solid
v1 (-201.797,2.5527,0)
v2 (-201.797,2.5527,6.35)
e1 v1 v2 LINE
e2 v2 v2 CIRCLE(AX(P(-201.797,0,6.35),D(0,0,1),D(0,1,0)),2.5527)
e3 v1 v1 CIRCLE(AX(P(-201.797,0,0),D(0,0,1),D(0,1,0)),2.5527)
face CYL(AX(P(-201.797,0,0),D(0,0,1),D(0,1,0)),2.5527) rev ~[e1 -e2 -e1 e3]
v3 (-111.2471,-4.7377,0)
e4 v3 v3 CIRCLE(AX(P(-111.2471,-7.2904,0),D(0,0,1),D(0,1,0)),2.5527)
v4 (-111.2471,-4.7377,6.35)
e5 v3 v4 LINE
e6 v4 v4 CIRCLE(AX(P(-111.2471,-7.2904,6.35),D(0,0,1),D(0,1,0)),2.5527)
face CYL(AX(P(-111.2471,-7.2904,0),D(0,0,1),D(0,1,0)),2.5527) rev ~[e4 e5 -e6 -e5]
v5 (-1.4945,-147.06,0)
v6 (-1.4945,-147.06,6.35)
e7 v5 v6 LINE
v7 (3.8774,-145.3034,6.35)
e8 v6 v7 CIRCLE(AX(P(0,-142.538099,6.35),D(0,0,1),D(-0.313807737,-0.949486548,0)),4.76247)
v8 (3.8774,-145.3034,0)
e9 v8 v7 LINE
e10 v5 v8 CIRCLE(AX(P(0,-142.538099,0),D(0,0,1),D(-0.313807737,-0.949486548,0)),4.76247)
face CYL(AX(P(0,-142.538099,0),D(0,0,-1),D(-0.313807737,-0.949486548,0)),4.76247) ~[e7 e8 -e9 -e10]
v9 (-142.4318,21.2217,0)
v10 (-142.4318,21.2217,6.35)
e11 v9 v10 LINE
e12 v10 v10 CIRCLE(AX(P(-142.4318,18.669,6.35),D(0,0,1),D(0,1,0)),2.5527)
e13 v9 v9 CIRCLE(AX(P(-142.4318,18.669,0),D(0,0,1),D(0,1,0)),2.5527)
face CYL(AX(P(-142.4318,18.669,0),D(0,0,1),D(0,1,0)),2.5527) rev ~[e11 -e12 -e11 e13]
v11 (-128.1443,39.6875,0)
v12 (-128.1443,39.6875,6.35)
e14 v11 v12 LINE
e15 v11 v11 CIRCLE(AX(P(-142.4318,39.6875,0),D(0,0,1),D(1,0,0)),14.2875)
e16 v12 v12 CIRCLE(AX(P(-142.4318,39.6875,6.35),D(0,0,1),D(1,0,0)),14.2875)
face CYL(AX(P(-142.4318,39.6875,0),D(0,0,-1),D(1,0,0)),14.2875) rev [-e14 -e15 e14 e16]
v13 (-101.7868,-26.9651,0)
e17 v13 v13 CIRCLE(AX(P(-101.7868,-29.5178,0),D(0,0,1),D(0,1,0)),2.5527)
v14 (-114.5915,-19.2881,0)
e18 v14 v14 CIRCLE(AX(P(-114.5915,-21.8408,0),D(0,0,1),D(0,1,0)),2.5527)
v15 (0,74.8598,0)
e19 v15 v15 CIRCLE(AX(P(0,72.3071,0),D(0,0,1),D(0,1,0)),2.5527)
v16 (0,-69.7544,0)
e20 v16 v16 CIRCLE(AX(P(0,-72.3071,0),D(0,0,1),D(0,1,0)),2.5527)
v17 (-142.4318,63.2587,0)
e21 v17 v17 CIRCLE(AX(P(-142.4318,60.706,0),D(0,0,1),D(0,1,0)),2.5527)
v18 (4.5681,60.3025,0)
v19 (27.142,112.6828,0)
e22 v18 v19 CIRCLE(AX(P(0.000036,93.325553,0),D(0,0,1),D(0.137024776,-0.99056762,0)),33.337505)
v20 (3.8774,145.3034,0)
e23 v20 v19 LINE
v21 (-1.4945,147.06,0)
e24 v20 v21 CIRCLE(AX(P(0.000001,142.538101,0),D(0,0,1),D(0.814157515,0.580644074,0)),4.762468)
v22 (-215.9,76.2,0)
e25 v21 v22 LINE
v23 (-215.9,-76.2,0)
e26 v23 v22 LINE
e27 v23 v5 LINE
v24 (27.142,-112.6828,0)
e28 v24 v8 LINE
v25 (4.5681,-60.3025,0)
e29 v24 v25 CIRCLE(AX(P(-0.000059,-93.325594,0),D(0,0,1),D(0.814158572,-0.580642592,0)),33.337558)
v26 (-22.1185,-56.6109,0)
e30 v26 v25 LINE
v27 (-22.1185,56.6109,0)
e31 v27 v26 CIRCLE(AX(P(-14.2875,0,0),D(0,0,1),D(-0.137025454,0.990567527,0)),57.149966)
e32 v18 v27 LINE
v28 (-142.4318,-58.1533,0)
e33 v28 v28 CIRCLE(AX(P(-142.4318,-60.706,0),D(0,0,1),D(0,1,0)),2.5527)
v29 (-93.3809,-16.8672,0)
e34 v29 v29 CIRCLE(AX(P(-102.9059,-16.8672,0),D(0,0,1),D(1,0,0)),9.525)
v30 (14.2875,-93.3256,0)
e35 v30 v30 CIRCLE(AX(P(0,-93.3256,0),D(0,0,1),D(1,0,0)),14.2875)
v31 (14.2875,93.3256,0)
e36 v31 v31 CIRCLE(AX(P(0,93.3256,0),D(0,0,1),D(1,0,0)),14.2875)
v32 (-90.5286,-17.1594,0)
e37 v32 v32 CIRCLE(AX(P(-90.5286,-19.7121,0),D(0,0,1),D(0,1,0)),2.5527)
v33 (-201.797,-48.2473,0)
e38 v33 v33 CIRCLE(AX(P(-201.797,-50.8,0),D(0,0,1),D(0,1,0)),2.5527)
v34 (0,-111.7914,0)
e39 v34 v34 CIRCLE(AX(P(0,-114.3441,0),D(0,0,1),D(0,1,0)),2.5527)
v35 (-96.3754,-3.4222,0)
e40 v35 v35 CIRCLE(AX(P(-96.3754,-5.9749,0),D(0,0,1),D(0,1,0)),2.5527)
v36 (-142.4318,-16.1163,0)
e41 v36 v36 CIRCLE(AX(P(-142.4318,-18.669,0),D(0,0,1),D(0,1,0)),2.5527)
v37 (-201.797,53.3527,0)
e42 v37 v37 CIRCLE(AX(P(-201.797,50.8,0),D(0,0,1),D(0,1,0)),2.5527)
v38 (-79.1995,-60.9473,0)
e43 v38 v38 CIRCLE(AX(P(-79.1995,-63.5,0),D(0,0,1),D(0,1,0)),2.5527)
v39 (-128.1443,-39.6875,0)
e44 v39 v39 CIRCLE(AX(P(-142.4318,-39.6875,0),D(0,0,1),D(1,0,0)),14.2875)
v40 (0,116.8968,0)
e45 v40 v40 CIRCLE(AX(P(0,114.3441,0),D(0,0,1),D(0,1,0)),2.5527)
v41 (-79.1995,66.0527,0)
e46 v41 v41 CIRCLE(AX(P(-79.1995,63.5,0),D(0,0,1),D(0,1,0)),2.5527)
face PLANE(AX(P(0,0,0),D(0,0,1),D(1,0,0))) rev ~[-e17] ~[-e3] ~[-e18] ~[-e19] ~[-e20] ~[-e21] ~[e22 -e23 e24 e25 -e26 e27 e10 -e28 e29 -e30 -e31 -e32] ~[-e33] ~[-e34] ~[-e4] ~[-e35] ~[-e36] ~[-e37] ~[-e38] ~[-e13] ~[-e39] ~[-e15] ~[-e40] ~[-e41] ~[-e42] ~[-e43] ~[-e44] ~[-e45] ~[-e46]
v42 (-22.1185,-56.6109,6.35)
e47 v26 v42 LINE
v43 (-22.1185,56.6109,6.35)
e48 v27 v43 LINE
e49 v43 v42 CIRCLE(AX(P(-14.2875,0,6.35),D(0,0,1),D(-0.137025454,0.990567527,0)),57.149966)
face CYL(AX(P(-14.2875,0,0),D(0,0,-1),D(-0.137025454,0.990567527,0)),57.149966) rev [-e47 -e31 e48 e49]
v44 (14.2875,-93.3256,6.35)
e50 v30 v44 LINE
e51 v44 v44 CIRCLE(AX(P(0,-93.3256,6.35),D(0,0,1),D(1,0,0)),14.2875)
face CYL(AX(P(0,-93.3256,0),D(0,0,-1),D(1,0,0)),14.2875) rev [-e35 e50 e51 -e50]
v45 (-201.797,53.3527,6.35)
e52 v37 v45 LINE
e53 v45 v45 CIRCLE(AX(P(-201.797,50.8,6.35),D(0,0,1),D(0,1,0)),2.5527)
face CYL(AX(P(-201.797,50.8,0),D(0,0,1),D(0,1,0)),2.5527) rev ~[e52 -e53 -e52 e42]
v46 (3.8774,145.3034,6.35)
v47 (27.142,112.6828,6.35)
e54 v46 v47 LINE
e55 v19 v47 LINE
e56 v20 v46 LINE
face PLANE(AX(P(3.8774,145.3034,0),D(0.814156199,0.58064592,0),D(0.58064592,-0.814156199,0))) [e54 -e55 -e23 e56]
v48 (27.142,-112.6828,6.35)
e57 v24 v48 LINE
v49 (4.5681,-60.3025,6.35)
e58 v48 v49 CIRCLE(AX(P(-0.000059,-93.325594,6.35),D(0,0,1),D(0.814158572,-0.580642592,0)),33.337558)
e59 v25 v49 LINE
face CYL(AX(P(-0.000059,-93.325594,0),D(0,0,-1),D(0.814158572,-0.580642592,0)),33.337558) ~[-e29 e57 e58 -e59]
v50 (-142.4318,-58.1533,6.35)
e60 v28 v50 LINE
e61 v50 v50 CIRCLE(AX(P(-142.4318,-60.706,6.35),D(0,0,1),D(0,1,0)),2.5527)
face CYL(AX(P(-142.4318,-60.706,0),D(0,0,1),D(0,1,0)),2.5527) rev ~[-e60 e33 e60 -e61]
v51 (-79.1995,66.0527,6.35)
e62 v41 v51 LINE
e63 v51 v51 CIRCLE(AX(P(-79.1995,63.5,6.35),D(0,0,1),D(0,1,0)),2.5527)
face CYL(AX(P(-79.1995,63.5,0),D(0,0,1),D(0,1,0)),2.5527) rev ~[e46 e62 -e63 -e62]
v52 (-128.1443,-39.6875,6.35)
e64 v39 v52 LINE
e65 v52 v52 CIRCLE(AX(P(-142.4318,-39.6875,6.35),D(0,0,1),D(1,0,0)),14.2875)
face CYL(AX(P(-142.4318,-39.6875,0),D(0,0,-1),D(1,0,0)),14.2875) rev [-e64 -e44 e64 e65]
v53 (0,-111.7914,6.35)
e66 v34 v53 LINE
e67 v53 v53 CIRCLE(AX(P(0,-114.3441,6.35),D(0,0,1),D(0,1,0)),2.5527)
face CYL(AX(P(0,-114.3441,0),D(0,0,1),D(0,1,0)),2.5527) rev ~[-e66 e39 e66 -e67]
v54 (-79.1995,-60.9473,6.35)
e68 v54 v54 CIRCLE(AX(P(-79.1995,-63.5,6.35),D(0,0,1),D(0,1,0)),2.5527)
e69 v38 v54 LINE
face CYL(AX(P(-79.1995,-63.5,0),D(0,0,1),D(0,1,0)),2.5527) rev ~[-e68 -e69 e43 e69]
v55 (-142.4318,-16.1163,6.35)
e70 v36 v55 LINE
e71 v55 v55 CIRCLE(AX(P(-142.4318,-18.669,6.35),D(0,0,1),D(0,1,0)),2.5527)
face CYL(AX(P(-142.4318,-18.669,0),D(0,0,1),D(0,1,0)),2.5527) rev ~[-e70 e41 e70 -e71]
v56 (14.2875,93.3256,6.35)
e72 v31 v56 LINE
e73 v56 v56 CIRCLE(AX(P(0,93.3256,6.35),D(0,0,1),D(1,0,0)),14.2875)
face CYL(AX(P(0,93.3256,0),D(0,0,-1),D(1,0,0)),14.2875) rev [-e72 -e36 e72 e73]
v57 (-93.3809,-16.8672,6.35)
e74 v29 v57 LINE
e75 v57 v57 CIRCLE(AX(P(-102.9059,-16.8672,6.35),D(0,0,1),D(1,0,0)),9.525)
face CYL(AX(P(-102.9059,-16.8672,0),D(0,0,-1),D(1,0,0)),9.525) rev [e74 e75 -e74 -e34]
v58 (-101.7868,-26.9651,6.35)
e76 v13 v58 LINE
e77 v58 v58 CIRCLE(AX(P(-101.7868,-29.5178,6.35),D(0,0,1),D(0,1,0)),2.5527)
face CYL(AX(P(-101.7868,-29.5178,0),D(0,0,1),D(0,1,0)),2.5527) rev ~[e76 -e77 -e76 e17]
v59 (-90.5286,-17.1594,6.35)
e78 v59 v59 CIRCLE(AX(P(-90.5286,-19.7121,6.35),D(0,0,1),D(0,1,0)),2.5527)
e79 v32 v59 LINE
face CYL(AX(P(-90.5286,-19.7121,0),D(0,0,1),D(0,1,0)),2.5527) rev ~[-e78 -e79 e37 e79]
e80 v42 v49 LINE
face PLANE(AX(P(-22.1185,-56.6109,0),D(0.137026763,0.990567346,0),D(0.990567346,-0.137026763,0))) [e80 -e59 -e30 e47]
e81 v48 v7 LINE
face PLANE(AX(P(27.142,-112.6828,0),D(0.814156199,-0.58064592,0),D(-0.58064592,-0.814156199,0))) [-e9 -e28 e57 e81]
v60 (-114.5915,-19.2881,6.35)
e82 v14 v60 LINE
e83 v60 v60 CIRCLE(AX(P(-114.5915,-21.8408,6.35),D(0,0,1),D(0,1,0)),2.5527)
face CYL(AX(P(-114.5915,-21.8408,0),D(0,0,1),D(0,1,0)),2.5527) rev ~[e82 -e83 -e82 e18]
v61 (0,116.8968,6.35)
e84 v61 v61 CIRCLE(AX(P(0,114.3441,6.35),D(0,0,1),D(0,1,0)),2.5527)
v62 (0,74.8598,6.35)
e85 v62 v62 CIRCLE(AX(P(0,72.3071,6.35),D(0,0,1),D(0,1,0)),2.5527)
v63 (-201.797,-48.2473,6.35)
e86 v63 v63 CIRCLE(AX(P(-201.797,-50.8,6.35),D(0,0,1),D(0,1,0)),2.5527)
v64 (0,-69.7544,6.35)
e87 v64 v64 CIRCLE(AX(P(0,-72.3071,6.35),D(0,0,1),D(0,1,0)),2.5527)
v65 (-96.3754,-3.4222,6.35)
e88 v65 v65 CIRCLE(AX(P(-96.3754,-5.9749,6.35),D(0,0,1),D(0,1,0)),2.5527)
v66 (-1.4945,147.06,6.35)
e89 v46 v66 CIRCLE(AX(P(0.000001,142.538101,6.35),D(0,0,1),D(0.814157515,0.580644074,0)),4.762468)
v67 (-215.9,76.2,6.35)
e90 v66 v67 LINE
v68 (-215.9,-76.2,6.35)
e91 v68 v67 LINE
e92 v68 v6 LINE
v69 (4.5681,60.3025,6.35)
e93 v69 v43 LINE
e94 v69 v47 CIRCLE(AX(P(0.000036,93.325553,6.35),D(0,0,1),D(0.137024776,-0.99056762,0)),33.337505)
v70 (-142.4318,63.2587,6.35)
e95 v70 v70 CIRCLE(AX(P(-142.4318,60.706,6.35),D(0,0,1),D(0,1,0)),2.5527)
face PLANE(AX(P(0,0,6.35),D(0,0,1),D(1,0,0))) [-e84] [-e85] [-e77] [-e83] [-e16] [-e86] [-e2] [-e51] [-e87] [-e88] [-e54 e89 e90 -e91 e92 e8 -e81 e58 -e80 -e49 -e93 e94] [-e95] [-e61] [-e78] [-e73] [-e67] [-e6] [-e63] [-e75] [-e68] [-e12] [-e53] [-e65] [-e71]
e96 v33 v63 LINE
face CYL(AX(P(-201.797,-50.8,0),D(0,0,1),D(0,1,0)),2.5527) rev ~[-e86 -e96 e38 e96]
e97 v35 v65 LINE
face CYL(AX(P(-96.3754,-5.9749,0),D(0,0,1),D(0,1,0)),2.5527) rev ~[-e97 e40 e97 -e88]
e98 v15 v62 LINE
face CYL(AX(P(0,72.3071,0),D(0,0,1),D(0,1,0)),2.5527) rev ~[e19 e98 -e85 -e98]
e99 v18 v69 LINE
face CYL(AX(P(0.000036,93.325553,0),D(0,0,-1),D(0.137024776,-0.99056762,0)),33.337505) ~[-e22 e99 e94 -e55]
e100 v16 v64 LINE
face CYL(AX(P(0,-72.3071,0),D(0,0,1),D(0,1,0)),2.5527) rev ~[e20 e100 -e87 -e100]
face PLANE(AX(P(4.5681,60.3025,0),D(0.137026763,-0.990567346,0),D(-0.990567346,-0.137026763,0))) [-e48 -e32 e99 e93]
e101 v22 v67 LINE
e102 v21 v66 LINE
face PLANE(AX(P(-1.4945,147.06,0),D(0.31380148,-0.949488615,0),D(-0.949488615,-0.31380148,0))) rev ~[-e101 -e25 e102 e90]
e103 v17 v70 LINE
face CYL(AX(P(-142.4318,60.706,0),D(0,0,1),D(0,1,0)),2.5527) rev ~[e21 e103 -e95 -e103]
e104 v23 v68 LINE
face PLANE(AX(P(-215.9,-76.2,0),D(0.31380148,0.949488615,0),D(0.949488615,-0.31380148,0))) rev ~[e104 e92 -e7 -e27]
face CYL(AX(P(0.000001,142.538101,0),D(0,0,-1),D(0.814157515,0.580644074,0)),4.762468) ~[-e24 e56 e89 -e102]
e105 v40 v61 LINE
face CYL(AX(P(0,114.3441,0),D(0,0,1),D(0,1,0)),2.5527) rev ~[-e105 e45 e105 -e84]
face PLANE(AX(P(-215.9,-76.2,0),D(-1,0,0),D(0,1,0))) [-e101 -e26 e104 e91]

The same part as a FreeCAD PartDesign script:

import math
import FreeCAD as App
import Part
import Sketcher

V = App.Vector
Q = App.Units.Quantity

doc = App.newDocument("Part")
params = doc.addObject("Spreadsheet::Sheet", "Params")
for row, (alias, value) in enumerate([
    ("sketch1_diameter", "0.75 in"),
    ("sketch1_height", "6 in"),
    ("sketch1_radius", "2.25 in"),
    ("sketch1_diameter2", "1.125 in"),
    ("sketch1_radius2", "0.1875 in"),
    ("pad1_length", "0.25 in"),
    ("sketch2_diameter", "0.201 in"),
    ("hole_diameter", "0.201 in"),
], start=1):
    params.set(f"A{row}", alias)
    params.set(f"B{row}", "=" + value)
    params.setAlias(f"B{row}", alias)

body = doc.addObject("PartDesign::Body", "Body")

# Sketch on XY plane
sketch1 = body.newObject("Sketcher::SketchObject", "Sketch")
sketch1.AttachmentSupport = (doc.getObject("XY_Plane"), [""])
sketch1.MapMode = "FlatFace"
sketch1.addGeometry([
    Part.LineSegment(V(-215.9, 76.2, 0), V(-215.9, -76.2, 0)),  # 0
    Part.LineSegment(V(-215.9, -76.2, 0), V(-1.5, -147.1, 0)),  # 1
    Part.ArcOfCircle(Part.Circle(V(0, -142.5, 0), V(0, 0, 1), 4.8), math.radians(-108), math.radians(-35)),  # 2
    Part.LineSegment(V(3.9, -145.3, 0), V(27.1, -112.7, 0)),  # 3
    Part.ArcOfCircle(Part.Circle(V(0, -93.3, 0), V(0, 0, 1), 33.3), math.radians(-35), math.radians(82)),  # 4
    Part.LineSegment(V(4.6, -60.3, 0), V(-22.1, -56.6, 0)),  # 5
    Part.ArcOfCircle(Part.Circle(V(-14.3, 0, 0), V(0, 0, 1), 57.1), math.radians(98), math.radians(262)),  # 6
    Part.LineSegment(V(-22.1, 56.6, 0), V(4.6, 60.3, 0)),  # 7
    Part.ArcOfCircle(Part.Circle(V(0, 93.3, 0), V(0, 0, 1), 33.3), math.radians(-82), math.radians(35)),  # 8
    Part.LineSegment(V(27.1, 112.7, 0), V(3.9, 145.3, 0)),  # 9
    Part.ArcOfCircle(Part.Circle(V(0, 142.5, 0), V(0, 0, 1), 4.8), math.radians(35), math.radians(108)),  # 10
    Part.LineSegment(V(-1.5, 147.1, 0), V(-215.9, 76.2, 0)),  # 11
    Part.Circle(V(-142.4, -39.7, 0), V(0, 0, 1), 14.3),  # 12
    Part.Circle(V(-102.9, -16.9, 0), V(0, 0, 1), 9.5),  # 13
    Part.Circle(V(0, -93.3, 0), V(0, 0, 1), 14.3),  # 14
    Part.Circle(V(-142.4, 39.7, 0), V(0, 0, 1), 14.3),  # 15
    Part.Circle(V(0, 93.3, 0), V(0, 0, 1), 14.3),  # 16
], False)
sketch1.addConstraint([
    Sketcher.Constraint("Coincident", 0, 2, 1, 1),
    Sketcher.Constraint("Tangent", 1, 2, 2, 1),
    Sketcher.Constraint("Tangent", 2, 2, 3, 1),
    Sketcher.Constraint("Tangent", 3, 2, 4, 1),
    Sketcher.Constraint("Tangent", 4, 2, 5, 1),
    Sketcher.Constraint("Tangent", 5, 2, 6, 2),
    Sketcher.Constraint("Tangent", 6, 1, 7, 1),
    Sketcher.Constraint("Tangent", 7, 2, 8, 1),
    Sketcher.Constraint("Tangent", 8, 2, 9, 1),
    Sketcher.Constraint("Tangent", 9, 2, 10, 1),
    Sketcher.Constraint("Tangent", 10, 2, 11, 1),
    Sketcher.Constraint("Coincident", 11, 2, 0, 1),
    Sketcher.Constraint("Vertical", 0),
    Sketcher.Constraint("Coincident", 14, 3, 4, 3),
    Sketcher.Constraint("Coincident", 16, 3, 8, 3),
    Sketcher.Constraint("Equal", 4, 8),
    Sketcher.Constraint("Equal", 2, 10),
    Sketcher.Constraint("Equal", 12, 14),
    Sketcher.Constraint("Equal", 14, 15),
    Sketcher.Constraint("Equal", 15, 16),
    Sketcher.Constraint("Symmetric", 4, 3, 8, 3, -1, 1),
    Sketcher.Constraint("Symmetric", 2, 3, 10, 3, -1, 1),
    Sketcher.Constraint("Symmetric", 12, 3, 15, 3, -1),
    Sketcher.Constraint("Symmetric", 5, 2, 6, 1, -1),
    Sketcher.Constraint("Symmetric", 1, 2, 10, 2, -1),
    Sketcher.Constraint("Diameter", 13, Q("0.75 in")),
    Sketcher.Constraint("DistanceY", 0, 2, 0, 1, Q("6 in")),
    Sketcher.Constraint("Radius", 6, Q("2.25 in")),
    Sketcher.Constraint("Diameter", 12, Q("1.125 in")),
    Sketcher.Constraint("Radius", 2, Q("0.1875 in")),
    Sketcher.Constraint("DistanceX", 0, 2, -1, 1, Q("8.5 in")),
    Sketcher.Constraint("Radius", 4, Q("1.3125 in")),
    Sketcher.Constraint("DistanceY", 12, 3, 15, 3, Q("3.125 in")),
    Sketcher.Constraint("DistanceX", 12, 3, -1, 1, Q("142.4318 mm")),
    Sketcher.Constraint("DistanceY", 4, 3, 8, 3, Q("186.6512 mm")),
    Sketcher.Constraint("DistanceX", 6, 3, -1, 1, Q("0.5625 in")),
    Sketcher.Constraint("DistanceY", 2, 3, 4, 3, Q("1.9375 in")),
    Sketcher.Constraint("DistanceY", 13, 3, 8, 3, Q("4.3383 in")),
    Sketcher.Constraint("DistanceX", 13, 3, 6, 1, Q("3.1806 in")),
])
sketch1.setExpression("Constraints[25]", "Params.sketch1_diameter")
sketch1.setExpression("Constraints[26]", "Params.sketch1_height")
sketch1.setExpression("Constraints[27]", "Params.sketch1_radius")
sketch1.setExpression("Constraints[28]", "Params.sketch1_diameter2")
sketch1.setExpression("Constraints[29]", "Params.sketch1_radius2")
pad1 = body.newObject("PartDesign::Pad", "Pad")
pad1.Profile = sketch1
pad1.setExpression("Length", "Params.pad1_length")

# Sketch on XY plane
sketch2 = body.newObject("Sketcher::SketchObject", "Sketch001")
sketch2.AttachmentSupport = (doc.getObject("XY_Plane"), [""])
sketch2.MapMode = "FlatFace"
sketch2.addGeometry([
    Part.Circle(V(-111.2, -7.3, 0), V(0, 0, 1), 2.6),  # 0
    Part.Circle(V(-114.6, -21.8, 0), V(0, 0, 1), 2.6),  # 1
    Part.Circle(V(-101.8, -29.5, 0), V(0, 0, 1), 2.6),  # 2
    Part.Circle(V(-90.5, -19.7, 0), V(0, 0, 1), 2.6),  # 3
    Part.Circle(V(-96.4, -6, 0), V(0, 0, 1), 2.6),  # 4
    Part.Circle(V(-79.2, 63.5, 0), V(0, 0, 1), 2.6),  # 5
    Part.Circle(V(-79.2, -63.5, 0), V(0, 0, 1), 2.6),  # 6
    Part.Circle(V(0, 114.3, 0), V(0, 0, 1), 2.6),  # 7
    Part.Circle(V(0, 72.3, 0), V(0, 0, 1), 2.6),  # 8
    Part.Circle(V(-142.4, 60.7, 0), V(0, 0, 1), 2.6),  # 9
    Part.Circle(V(-142.4, 18.7, 0), V(0, 0, 1), 2.6),  # 10
    Part.Circle(V(-142.4, -18.7, 0), V(0, 0, 1), 2.6),  # 11
    Part.Circle(V(-142.4, -60.7, 0), V(0, 0, 1), 2.6),  # 12
    Part.Circle(V(0, -72.3, 0), V(0, 0, 1), 2.6),  # 13
    Part.Circle(V(0, -114.3, 0), V(0, 0, 1), 2.6),  # 14
    Part.Circle(V(-201.8, 50.8, 0), V(0, 0, 1), 2.6),  # 15
    Part.Circle(V(-201.8, 0, 0), V(0, 0, 1), 2.6),  # 16
    Part.Circle(V(-201.8, -50.8, 0), V(0, 0, 1), 2.6),  # 17
], False)
sketch2.addConstraint([
    Sketcher.Constraint("Equal", 0, 1),
    Sketcher.Constraint("Equal", 1, 2),
    Sketcher.Constraint("Equal", 2, 3),
    Sketcher.Constraint("Equal", 3, 4),
    Sketcher.Constraint("Equal", 4, 5),
    Sketcher.Constraint("Equal", 5, 6),
    Sketcher.Constraint("Equal", 6, 7),
    Sketcher.Constraint("Equal", 7, 8),
    Sketcher.Constraint("Equal", 8, 9),
    Sketcher.Constraint("Equal", 9, 10),
    Sketcher.Constraint("Equal", 10, 11),
    Sketcher.Constraint("Equal", 11, 12),
    Sketcher.Constraint("Equal", 12, 13),
    Sketcher.Constraint("Equal", 13, 14),
    Sketcher.Constraint("Equal", 14, 15),
    Sketcher.Constraint("Equal", 15, 16),
    Sketcher.Constraint("Equal", 16, 17),
    Sketcher.Constraint("Symmetric", 8, 3, 13, 3, -1, 1),
    Sketcher.Constraint("Symmetric", 7, 3, 14, 3, -1, 1),
    Sketcher.Constraint("Symmetric", 5, 3, 6, 3, -1),
    Sketcher.Constraint("Symmetric", 10, 3, 11, 3, -1),
    Sketcher.Constraint("Symmetric", 9, 3, 12, 3, -1),
    Sketcher.Constraint("Symmetric", 15, 3, 17, 3, -1),
    Sketcher.Constraint("PointOnObject", 7, 3, -2),
    Sketcher.Constraint("PointOnObject", 8, 3, -2),
    Sketcher.Constraint("PointOnObject", 16, 3, -1),
    Sketcher.Constraint("Vertical", 9, 3, 10, 3),
    Sketcher.Constraint("Vertical", 15, 3, 16, 3),
    Sketcher.Constraint("Diameter", 0, Q("0.201 in")),
    Sketcher.Constraint("DistanceY", -1, 1, 15, 3, Q("2 in")),
    Sketcher.Constraint("DistanceY", -1, 1, 5, 3, Q("2.5 in")),
    Sketcher.Constraint("DistanceY", -1, 1, 9, 3, Q("2.39 in")),
    Sketcher.Constraint("DistanceY", 11, 3, 10, 3, Q("1.47 in")),
    Sketcher.Constraint("DistanceY", 8, 3, 7, 3, Q("1.655 in")),
    Sketcher.Constraint("DistanceX", 0, 3, -1, 1, Q("4.3798 in")),
    Sketcher.Constraint("DistanceX", 4, 3, -1, 1, Q("3.7943 in")),
    Sketcher.Constraint("DistanceX", 5, 3, -1, 1, Q("3.1181 in")),
    Sketcher.Constraint("DistanceY", 2, 3, 0, 3, Q("0.8751 in")),
    Sketcher.Constraint("DistanceY", 1, 3, 3, 3, Q("0.0838 in")),
    Sketcher.Constraint("DistanceX", 0, 3, 3, 3, Q("0.8157 in")),
    Sketcher.Constraint("DistanceY", 0, 3, 4, 3, Q("0.0518 in")),
    Sketcher.Constraint("DistanceY", 3, 3, 7, 3, Q("5.2778 in")),
    Sketcher.Constraint("DistanceX", 10, 3, 2, 3, Q("1.6002 in")),
    Sketcher.Constraint("DistanceY", 13, 3, 4, 3, Q("2.6115 in")),
    Sketcher.Constraint("DistanceY", 0, 3, -1, 1, Q("7.2904 mm")),
    Sketcher.Constraint("DistanceX", 1, 3, -1, 1, Q("114.5915 mm")),
    Sketcher.Constraint("DistanceX", 2, 3, -1, 1, Q("101.7868 mm")),
    Sketcher.Constraint("DistanceX", 15, 3, -1, 1, Q("201.797 mm")),
])
sketch2.setExpression("Constraints[28]", "Params.sketch2_diameter")
doc.recompute()
hole = body.newObject("PartDesign::Hole", "Hole")
hole.Profile = sketch2
hole.ThreadType = "None"
hole.setExpression("Diameter", "Params.hole_diameter")
hole.DepthType = "ThroughAll"
hole.Reversed = True

doc.recompute()
